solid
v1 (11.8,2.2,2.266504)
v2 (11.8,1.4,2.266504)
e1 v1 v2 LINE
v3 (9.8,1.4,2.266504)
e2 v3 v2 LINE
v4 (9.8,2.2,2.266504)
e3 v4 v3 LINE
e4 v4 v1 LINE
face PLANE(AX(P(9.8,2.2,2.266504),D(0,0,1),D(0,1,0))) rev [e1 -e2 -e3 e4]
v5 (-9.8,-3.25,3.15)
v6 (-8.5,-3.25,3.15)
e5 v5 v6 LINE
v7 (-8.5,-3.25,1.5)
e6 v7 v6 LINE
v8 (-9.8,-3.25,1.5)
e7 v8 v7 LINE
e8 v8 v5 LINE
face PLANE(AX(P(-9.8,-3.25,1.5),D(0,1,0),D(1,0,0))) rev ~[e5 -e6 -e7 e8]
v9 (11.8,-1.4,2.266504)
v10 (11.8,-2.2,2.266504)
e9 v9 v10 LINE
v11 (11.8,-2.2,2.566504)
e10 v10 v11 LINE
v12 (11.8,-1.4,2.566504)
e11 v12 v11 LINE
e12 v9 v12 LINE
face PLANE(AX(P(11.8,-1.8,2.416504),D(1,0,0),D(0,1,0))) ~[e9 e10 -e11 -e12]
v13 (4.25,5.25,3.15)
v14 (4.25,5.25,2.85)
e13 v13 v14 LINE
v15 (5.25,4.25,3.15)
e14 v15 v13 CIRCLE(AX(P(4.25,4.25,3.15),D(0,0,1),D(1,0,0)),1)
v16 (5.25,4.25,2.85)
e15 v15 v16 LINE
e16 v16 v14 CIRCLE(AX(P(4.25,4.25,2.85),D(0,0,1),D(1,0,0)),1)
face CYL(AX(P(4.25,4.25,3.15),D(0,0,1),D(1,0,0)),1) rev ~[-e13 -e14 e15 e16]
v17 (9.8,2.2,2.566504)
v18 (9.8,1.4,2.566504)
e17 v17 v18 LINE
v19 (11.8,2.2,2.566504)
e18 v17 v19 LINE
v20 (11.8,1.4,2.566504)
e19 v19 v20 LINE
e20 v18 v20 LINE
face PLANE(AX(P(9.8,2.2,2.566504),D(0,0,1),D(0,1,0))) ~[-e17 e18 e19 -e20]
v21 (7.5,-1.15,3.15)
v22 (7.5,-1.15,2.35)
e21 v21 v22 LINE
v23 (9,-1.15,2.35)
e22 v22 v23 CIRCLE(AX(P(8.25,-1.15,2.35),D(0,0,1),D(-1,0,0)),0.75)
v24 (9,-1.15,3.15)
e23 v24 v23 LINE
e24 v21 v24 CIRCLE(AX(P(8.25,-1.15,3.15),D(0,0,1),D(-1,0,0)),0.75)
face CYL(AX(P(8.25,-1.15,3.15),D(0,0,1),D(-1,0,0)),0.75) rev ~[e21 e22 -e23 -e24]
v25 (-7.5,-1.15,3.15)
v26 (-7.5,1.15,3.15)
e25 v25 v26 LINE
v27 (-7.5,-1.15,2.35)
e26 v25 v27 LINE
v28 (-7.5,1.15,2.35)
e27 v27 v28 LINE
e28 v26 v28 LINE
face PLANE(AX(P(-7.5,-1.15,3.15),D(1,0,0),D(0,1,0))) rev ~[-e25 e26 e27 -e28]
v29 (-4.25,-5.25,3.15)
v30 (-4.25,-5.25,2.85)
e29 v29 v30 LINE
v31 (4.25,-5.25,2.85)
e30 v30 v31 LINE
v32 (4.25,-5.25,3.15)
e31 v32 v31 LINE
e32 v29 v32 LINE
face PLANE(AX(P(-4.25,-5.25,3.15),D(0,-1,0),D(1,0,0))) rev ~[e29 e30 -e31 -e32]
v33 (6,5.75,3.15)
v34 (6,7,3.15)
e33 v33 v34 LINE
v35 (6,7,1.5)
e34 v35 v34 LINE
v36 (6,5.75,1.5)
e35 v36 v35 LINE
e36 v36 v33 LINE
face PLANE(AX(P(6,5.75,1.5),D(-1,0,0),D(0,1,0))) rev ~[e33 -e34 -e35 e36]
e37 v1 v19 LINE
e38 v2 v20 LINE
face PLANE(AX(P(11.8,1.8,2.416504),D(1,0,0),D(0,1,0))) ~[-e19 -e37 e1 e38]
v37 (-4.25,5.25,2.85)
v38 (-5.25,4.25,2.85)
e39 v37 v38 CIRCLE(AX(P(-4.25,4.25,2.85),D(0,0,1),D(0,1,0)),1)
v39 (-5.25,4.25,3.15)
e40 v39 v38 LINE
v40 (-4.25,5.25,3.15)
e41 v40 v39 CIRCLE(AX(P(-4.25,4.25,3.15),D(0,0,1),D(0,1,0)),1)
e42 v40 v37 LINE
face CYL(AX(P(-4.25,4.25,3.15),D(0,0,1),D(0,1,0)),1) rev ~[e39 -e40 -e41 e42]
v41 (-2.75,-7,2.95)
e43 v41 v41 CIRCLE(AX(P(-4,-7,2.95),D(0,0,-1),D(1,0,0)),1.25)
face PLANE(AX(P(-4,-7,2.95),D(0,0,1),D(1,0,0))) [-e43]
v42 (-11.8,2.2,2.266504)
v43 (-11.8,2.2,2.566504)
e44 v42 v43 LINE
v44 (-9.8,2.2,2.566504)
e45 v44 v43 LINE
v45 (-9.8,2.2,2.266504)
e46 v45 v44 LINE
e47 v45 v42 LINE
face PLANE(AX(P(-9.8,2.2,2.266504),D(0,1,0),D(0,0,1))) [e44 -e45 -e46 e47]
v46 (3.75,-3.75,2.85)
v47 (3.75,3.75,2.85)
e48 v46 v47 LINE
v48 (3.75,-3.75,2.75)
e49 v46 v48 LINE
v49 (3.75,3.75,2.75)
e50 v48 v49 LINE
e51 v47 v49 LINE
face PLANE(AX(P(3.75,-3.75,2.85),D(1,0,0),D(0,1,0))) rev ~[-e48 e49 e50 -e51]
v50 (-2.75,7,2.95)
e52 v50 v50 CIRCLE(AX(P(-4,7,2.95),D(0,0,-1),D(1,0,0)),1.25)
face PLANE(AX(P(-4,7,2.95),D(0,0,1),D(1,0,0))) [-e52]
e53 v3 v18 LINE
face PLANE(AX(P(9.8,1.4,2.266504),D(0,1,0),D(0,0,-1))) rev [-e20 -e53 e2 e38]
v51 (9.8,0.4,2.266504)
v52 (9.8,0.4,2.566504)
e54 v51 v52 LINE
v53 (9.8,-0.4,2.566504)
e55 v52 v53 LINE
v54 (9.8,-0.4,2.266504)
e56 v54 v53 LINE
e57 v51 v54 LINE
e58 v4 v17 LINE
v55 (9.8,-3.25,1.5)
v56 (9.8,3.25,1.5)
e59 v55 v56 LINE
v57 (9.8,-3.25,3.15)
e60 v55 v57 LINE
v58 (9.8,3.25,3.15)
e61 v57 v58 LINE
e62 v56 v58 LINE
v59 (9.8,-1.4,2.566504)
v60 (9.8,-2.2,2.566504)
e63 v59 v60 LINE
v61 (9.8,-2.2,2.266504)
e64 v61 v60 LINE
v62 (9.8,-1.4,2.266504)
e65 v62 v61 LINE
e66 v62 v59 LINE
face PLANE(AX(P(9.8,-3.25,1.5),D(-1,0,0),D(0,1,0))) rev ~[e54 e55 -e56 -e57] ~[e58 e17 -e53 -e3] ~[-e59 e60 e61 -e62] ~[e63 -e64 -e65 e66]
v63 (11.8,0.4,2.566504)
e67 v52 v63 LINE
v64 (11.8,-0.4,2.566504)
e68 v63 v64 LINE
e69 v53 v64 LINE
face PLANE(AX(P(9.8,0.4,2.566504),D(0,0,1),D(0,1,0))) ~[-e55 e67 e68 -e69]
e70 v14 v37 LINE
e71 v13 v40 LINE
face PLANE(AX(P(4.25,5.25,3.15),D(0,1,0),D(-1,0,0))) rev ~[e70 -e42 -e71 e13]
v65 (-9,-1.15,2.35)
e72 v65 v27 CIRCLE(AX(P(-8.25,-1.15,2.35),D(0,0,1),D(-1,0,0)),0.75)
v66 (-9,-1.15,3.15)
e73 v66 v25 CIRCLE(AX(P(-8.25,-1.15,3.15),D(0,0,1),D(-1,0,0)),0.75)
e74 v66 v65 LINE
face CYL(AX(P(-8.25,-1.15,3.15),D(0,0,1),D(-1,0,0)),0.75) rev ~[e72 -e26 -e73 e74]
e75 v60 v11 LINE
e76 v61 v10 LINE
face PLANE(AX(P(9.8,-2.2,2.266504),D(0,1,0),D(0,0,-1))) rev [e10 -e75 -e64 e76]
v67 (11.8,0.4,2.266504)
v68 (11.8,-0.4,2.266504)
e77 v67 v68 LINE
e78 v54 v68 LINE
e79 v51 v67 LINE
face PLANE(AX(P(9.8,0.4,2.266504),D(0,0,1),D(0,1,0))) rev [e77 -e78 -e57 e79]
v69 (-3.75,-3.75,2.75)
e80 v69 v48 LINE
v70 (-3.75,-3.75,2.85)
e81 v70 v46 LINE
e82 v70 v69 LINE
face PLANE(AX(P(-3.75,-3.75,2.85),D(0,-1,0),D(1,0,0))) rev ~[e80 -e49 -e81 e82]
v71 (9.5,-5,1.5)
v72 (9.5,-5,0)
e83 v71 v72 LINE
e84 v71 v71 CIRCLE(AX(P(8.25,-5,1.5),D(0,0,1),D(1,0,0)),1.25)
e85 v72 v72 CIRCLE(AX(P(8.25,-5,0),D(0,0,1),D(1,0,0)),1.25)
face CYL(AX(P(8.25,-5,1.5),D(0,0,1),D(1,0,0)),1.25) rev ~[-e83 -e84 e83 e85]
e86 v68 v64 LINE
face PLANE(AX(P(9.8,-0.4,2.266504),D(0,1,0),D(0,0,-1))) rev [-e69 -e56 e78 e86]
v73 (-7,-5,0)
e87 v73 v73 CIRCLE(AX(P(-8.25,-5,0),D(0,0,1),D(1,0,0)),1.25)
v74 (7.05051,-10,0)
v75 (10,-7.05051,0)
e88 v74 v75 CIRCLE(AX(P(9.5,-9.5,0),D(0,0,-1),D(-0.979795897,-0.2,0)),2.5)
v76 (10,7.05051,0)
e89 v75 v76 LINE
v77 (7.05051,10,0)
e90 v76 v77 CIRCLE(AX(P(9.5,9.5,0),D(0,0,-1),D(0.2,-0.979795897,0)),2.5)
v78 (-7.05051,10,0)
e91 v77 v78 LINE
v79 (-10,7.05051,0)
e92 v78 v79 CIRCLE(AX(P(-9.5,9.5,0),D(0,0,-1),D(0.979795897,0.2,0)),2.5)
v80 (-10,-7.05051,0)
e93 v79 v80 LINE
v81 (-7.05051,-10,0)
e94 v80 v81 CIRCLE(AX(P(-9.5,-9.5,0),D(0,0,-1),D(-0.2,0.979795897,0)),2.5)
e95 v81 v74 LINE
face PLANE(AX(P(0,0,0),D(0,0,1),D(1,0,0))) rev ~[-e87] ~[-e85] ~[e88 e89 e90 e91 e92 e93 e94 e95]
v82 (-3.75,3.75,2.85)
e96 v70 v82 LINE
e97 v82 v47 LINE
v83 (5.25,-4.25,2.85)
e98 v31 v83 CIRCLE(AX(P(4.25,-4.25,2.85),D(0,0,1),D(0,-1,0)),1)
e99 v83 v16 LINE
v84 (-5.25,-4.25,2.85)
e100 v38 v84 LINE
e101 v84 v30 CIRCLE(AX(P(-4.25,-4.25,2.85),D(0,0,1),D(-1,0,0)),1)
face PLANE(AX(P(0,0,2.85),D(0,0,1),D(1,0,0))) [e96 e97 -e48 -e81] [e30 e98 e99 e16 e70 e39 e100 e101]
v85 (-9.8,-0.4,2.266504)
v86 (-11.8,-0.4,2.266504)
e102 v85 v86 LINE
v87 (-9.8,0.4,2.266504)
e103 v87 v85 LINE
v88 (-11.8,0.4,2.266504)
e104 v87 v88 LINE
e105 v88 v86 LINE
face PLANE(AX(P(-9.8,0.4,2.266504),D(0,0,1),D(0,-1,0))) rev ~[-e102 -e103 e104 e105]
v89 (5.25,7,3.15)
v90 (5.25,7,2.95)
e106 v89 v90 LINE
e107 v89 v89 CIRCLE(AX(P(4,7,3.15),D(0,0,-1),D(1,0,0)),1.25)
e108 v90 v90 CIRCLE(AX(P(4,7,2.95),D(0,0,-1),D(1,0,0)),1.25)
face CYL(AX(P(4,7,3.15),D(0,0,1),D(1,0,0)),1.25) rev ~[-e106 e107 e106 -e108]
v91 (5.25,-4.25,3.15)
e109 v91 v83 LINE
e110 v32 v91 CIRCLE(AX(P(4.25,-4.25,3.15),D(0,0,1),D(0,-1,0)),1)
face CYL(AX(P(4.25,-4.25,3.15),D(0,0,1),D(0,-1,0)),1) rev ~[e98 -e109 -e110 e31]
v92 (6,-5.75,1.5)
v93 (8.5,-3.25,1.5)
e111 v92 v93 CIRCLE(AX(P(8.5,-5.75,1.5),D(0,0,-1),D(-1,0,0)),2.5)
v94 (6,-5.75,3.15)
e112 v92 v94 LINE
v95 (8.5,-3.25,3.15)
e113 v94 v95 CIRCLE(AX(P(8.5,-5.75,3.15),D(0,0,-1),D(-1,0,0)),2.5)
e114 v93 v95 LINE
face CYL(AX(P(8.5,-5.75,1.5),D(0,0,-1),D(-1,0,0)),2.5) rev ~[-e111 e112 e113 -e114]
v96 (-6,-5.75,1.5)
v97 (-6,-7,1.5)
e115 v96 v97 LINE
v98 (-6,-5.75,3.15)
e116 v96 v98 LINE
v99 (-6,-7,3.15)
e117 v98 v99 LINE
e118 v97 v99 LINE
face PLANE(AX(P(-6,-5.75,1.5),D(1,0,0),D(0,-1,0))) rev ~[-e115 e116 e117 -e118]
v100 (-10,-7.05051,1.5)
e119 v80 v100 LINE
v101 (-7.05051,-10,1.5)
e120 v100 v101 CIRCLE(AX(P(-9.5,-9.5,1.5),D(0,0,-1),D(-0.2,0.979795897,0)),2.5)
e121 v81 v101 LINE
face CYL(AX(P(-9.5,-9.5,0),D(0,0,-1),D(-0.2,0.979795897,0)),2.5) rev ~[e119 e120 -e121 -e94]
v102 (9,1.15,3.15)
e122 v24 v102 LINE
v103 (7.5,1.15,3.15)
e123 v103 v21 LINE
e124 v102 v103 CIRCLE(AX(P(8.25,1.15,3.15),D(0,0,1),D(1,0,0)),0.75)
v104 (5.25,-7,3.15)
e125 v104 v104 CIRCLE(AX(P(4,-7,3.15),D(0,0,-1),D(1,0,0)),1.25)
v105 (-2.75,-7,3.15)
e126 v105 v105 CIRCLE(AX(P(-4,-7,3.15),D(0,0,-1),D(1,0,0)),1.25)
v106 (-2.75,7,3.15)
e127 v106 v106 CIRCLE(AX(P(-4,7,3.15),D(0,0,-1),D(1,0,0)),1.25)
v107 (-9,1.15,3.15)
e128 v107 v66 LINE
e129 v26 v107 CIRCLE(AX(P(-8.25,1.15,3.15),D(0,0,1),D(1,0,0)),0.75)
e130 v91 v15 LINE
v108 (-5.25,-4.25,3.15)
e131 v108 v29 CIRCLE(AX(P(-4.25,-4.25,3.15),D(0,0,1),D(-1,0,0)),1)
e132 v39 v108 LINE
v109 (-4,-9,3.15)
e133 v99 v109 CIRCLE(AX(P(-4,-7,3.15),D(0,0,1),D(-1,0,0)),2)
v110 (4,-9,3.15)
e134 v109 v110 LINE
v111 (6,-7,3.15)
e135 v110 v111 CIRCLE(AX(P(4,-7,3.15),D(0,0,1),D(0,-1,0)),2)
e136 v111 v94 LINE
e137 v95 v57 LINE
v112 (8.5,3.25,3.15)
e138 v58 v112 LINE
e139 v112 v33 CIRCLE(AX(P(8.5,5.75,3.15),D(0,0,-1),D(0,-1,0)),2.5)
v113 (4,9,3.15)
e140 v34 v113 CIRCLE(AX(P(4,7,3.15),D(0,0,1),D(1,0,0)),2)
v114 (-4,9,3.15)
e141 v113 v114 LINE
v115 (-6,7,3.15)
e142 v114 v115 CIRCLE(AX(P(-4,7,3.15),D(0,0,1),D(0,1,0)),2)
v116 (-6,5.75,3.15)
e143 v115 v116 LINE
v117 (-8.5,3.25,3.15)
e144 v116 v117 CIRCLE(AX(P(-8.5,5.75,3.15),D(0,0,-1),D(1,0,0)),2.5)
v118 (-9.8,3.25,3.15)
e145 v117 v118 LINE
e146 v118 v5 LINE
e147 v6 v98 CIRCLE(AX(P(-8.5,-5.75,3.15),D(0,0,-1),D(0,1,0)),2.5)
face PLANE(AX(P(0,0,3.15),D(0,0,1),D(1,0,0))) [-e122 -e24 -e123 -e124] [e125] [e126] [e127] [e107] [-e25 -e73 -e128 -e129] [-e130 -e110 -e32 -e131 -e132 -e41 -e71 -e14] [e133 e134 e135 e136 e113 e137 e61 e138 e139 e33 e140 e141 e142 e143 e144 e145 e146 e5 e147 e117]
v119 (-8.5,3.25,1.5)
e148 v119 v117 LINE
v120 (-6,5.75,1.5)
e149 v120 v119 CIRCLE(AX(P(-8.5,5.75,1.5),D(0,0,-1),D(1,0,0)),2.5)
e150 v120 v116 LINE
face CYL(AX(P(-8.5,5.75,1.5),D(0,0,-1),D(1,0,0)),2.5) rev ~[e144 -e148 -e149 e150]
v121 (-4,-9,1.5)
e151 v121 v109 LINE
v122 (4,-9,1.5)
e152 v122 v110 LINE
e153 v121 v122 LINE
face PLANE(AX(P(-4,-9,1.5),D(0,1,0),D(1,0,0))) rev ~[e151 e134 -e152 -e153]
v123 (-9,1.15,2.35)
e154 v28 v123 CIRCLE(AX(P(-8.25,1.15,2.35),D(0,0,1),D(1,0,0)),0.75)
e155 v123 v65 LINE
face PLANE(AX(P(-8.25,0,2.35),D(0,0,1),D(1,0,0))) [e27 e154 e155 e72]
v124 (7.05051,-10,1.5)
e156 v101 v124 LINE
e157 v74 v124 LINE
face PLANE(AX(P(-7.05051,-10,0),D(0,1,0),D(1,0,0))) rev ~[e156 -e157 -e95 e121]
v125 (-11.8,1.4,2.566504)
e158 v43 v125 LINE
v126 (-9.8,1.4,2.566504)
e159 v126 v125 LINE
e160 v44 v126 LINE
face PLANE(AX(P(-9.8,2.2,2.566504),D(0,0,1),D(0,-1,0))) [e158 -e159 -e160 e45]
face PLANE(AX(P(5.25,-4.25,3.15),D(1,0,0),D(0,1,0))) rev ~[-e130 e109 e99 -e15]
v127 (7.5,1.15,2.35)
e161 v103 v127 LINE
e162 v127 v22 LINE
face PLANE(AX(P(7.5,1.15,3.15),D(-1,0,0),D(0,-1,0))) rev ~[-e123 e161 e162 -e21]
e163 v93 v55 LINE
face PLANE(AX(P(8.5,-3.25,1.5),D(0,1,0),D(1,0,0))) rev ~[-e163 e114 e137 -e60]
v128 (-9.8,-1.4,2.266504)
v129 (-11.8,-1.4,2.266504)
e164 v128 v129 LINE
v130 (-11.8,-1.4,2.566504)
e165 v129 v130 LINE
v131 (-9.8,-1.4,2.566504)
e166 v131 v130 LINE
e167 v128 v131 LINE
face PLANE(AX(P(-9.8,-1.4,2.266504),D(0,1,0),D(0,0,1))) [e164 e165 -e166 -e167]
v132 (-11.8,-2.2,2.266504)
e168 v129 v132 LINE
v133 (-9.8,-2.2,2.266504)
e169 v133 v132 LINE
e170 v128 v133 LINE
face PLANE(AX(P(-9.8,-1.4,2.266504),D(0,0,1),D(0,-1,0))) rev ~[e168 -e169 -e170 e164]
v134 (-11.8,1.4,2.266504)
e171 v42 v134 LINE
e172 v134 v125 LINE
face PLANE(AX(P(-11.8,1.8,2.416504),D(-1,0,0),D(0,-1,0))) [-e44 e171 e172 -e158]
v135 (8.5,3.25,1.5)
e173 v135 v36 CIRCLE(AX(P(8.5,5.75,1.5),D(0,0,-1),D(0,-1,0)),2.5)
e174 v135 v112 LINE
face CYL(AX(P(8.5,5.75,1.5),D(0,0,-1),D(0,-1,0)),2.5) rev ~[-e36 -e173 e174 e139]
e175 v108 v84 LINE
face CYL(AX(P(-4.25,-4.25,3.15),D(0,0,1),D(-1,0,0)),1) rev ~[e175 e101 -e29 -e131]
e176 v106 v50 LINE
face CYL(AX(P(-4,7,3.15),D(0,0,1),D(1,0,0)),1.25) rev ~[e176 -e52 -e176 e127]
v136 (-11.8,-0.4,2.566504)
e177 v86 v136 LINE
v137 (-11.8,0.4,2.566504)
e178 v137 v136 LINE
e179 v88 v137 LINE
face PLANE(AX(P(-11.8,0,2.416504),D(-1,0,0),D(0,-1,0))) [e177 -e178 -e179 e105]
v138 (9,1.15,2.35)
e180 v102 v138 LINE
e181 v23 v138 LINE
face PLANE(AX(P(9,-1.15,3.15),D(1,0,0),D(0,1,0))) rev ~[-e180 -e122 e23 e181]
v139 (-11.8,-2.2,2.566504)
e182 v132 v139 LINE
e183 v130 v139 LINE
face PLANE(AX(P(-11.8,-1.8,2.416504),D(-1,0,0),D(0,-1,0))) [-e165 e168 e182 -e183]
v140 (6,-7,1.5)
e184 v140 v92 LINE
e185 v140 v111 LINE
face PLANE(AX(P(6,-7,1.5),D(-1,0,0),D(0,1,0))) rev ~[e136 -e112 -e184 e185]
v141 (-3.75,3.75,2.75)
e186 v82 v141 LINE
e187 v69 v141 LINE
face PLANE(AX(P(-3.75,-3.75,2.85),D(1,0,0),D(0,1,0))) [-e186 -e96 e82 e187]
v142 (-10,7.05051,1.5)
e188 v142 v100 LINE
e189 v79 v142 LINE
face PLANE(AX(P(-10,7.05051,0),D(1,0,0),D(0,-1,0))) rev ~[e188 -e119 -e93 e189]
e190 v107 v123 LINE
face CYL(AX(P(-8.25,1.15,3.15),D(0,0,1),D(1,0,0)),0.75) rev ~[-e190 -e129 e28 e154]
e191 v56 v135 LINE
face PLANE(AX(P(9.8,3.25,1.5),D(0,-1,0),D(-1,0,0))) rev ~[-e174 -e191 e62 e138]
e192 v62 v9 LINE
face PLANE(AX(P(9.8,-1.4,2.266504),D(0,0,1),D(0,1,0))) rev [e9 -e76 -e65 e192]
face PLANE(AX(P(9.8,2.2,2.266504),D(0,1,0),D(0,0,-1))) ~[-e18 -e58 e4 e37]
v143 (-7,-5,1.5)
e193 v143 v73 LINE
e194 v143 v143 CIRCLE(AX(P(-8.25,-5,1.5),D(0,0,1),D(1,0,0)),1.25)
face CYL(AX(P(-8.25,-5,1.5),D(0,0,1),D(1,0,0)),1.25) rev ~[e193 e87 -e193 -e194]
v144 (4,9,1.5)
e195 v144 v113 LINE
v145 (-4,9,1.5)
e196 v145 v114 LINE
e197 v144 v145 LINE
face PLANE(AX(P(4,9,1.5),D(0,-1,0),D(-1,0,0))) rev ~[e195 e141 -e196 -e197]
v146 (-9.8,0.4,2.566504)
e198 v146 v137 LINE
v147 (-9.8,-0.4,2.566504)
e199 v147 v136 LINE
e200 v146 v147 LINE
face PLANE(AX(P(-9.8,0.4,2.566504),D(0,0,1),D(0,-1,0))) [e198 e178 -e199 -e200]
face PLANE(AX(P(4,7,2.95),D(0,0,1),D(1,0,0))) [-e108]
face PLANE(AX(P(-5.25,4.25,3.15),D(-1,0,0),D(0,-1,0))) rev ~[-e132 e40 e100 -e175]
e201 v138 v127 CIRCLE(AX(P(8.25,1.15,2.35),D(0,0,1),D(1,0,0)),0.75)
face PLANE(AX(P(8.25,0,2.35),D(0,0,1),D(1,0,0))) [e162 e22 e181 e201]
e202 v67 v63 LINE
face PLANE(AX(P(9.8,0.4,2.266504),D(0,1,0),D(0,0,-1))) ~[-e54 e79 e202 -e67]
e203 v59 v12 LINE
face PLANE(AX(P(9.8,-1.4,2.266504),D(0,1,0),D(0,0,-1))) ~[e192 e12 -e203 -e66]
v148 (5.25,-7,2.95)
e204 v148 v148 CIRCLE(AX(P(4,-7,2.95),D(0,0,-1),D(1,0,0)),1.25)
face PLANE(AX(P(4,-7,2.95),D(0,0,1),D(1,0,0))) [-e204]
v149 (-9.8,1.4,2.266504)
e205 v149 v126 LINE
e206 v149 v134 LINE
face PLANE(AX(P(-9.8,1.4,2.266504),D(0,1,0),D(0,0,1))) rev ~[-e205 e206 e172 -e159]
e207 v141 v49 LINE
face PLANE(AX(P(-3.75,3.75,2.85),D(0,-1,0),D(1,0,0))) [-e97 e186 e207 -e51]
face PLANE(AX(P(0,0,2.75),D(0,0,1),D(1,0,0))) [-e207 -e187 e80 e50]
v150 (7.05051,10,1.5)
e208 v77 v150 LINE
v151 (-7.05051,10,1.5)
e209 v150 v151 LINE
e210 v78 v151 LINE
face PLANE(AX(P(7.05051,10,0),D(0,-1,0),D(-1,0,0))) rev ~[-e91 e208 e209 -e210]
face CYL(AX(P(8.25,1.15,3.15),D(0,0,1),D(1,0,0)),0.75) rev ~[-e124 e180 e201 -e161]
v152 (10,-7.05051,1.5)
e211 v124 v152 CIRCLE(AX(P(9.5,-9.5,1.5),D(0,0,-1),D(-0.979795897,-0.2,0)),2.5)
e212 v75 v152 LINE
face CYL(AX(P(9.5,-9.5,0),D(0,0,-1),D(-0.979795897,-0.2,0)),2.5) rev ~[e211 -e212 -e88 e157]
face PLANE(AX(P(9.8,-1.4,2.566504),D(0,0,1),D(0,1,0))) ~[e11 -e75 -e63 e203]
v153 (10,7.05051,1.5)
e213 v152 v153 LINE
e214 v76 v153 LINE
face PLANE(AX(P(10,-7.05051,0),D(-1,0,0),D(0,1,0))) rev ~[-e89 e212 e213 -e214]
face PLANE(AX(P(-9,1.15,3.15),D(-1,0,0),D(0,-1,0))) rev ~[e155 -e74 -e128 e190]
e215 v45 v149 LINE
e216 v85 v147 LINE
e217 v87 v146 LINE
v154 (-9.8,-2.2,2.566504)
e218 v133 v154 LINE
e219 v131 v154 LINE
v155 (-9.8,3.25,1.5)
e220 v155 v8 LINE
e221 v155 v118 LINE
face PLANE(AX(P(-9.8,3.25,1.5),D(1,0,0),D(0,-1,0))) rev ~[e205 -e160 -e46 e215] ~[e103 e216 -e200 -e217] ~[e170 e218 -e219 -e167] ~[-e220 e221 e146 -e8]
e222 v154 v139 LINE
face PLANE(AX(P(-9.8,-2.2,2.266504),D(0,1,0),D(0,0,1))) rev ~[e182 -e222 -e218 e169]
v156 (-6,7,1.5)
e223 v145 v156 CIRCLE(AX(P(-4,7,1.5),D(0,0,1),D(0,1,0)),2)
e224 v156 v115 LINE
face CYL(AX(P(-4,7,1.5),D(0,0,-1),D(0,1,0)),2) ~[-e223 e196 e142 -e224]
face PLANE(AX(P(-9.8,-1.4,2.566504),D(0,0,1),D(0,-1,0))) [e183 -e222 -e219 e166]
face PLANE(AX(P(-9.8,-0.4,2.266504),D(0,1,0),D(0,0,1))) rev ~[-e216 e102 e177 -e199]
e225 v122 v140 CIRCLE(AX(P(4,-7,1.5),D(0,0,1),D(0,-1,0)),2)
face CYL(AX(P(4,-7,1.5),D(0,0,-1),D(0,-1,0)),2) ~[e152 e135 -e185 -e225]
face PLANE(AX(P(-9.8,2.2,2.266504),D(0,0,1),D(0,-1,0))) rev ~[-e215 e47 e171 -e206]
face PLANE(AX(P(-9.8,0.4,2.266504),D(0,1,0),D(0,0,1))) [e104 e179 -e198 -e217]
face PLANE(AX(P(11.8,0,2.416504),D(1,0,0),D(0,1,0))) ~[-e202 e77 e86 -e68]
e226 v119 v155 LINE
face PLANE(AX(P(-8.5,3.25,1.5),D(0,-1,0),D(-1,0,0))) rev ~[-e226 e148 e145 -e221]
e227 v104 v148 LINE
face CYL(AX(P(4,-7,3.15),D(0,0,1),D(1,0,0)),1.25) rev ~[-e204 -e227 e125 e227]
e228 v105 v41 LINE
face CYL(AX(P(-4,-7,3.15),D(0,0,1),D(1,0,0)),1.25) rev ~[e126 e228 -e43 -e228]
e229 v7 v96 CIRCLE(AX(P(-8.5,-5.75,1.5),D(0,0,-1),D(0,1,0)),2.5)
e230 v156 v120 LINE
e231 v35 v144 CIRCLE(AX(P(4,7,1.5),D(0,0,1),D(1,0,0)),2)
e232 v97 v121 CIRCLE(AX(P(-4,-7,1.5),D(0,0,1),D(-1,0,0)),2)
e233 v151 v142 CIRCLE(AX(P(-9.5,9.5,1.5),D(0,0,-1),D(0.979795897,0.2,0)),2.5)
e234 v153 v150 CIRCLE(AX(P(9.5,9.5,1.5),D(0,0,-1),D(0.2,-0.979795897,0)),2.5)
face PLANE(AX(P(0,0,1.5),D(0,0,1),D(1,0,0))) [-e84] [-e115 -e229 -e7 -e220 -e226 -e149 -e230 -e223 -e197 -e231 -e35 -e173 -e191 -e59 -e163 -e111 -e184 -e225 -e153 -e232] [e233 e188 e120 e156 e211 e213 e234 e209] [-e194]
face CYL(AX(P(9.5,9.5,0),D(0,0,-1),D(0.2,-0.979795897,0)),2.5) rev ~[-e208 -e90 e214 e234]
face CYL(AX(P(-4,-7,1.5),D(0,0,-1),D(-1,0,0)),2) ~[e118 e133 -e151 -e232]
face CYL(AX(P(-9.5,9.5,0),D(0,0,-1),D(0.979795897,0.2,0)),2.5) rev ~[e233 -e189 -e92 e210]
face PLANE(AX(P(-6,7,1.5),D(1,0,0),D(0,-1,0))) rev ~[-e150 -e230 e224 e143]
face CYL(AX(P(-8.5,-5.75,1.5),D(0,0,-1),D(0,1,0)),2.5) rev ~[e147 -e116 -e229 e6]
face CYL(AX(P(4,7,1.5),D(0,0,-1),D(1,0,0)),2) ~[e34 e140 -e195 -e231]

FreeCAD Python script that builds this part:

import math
import FreeCAD as App
import Part
import Sketcher

doc = App.newDocument("Part")
body = doc.addObject("PartDesign::Body", "Body")

sketch1 = doc.addObject("Sketcher::SketchObject", "Sketch")
body.addObject(sketch1)
sketch1.AttachmentSupport = (doc.XY_Plane, [""])
sketch1.MapMode = "FlatFace"
sketch1.addGeometry(Part.ArcOfCircle(Part.Circle(App.Vector(-9.5, 9.5, 0), App.Vector(0, 0, 1), 2.5), math.radians(-102), math.radians(12)), False)
sketch1.addGeometry(Part.LineSegment(App.Vector(-10, 7.1, 0), App.Vector(-10, -7.1, 0)), False)
sketch1.addGeometry(Part.ArcOfCircle(Part.Circle(App.Vector(-9.5, -9.5, 0), App.Vector(0, 0, 1), 2.5), math.radians(-12), math.radians(102)), False)
sketch1.addGeometry(Part.LineSegment(App.Vector(-7.1, -10, 0), App.Vector(7.1, -10, 0)), False)
sketch1.addGeometry(Part.ArcOfCircle(Part.Circle(App.Vector(9.5, -9.5, 0), App.Vector(0, 0, 1), 2.5), math.radians(78), math.radians(192)), False)
sketch1.addGeometry(Part.LineSegment(App.Vector(10, -7.1, 0), App.Vector(10, 7.1, 0)), False)
sketch1.addGeometry(Part.ArcOfCircle(Part.Circle(App.Vector(9.5, 9.5, 0), App.Vector(0, 0, 1), 2.5), math.radians(168), math.radians(282)), False)
sketch1.addGeometry(Part.LineSegment(App.Vector(7.1, 10, 0), App.Vector(-7.1, 10, 0)), False)
sketch1.addConstraint(Sketcher.Constraint("Coincident", 0, 1, 1, 1))
sketch1.addConstraint(Sketcher.Constraint("Coincident", 1, 2, 2, 2))
sketch1.addConstraint(Sketcher.Constraint("Coincident", 2, 1, 3, 1))
sketch1.addConstraint(Sketcher.Constraint("Coincident", 3, 2, 4, 2))
sketch1.addConstraint(Sketcher.Constraint("Coincident", 4, 1, 5, 1))
sketch1.addConstraint(Sketcher.Constraint("Coincident", 5, 2, 6, 2))
sketch1.addConstraint(Sketcher.Constraint("Coincident", 6, 1, 7, 1))
sketch1.addConstraint(Sketcher.Constraint("Coincident", 7, 2, 0, 2))
sketch1.addConstraint(Sketcher.Constraint("Vertical", 1))
sketch1.addConstraint(Sketcher.Constraint("Horizontal", 3))
sketch1.addConstraint(Sketcher.Constraint("Vertical", 5))
sketch1.addConstraint(Sketcher.Constraint("Horizontal", 7))
sketch1.addConstraint(Sketcher.Constraint("Equal", 0, 2))
sketch1.addConstraint(Sketcher.Constraint("Equal", 2, 4))
sketch1.addConstraint(Sketcher.Constraint("Equal", 4, 6))
sketch1.addConstraint(Sketcher.Constraint("Symmetric", 0, 3, 4, 3, -1, 1))
sketch1.addConstraint(Sketcher.Constraint("Symmetric", 2, 3, 6, 3, -1, 1))
sketch1.addConstraint(Sketcher.Constraint("Symmetric", 2, 3, 4, 3, -2))
sketch1.addConstraint(Sketcher.Constraint("Horizontal", 1, 2, 4, 1))
sketch1.addConstraint(Sketcher.Constraint("Vertical", 3, 2, 6, 1))
sketch1.addConstraint(Sketcher.Constraint("Equal", 7, 1))
sketch1.addConstraint(Sketcher.Constraint("Radius", 0, 2.5))
sketch1.addConstraint(Sketcher.Constraint("DistanceX", 0, 1, -1, 1, 10.0))
sketch1.addConstraint(Sketcher.Constraint("DistanceY", 2, 1, -1, 1, 10.0))
sketch1.addConstraint(Sketcher.Constraint("DistanceY", 2, 3, 0, 3, 19.0))
pad1 = doc.addObject("PartDesign::Pad", "Pad")
body.addObject(pad1)
pad1.Profile = sketch1
pad1.Length = 1.5

sketch2 = doc.addObject("Sketcher::SketchObject", "Sketch001")
body.addObject(sketch2)
sketch2.AttachmentSupport = (doc.XY_Plane, [""])
sketch2.MapMode = "FlatFace"
sketch2.AttachmentOffset = App.Placement(App.Vector(0, 0, 1.5), App.Rotation())
sketch2.addGeometry(Part.LineSegment(App.Vector(-6, 7, 0), App.Vector(-6, 5.8, 0)), False)
sketch2.addGeometry(Part.ArcOfCircle(Part.Circle(App.Vector(-8.5, 5.8, 0), App.Vector(0, 0, 1), 2.5), math.radians(-90), math.radians(0)), False)
sketch2.addGeometry(Part.LineSegment(App.Vector(-8.5, 3.2, 0), App.Vector(-9.8, 3.2, 0)), False)
sketch2.addGeometry(Part.LineSegment(App.Vector(-9.8, 3.2, 0), App.Vector(-9.8, -3.2, 0)), False)
sketch2.addGeometry(Part.LineSegment(App.Vector(-9.8, -3.2, 0), App.Vector(-8.5, -3.2, 0)), False)
sketch2.addGeometry(Part.ArcOfCircle(Part.Circle(App.Vector(-8.5, -5.8, 0), App.Vector(0, 0, 1), 2.5), math.radians(0), math.radians(90)), False)
sketch2.addGeometry(Part.LineSegment(App.Vector(-6, -5.8, 0), App.Vector(-6, -7, 0)), False)
sketch2.addGeometry(Part.ArcOfCircle(Part.Circle(App.Vector(-4, -7, 0), App.Vector(0, 0, 1), 2), math.radians(180), math.radians(270)), False)
sketch2.addGeometry(Part.LineSegment(App.Vector(-4, -9, 0), App.Vector(4, -9, 0)), False)
sketch2.addGeometry(Part.ArcOfCircle(Part.Circle(App.Vector(4, -7, 0), App.Vector(0, 0, 1), 2), math.radians(-90), math.radians(0)), False)
sketch2.addGeometry(Part.LineSegment(App.Vector(6, -7, 0), App.Vector(6, -5.8, 0)), False)
sketch2.addGeometry(Part.ArcOfCircle(Part.Circle(App.Vector(8.5, -5.8, 0), App.Vector(0, 0, 1), 2.5), math.radians(90), math.radians(180)), False)
sketch2.addGeometry(Part.LineSegment(App.Vector(8.5, -3.2, 0), App.Vector(9.8, -3.2, 0)), False)
sketch2.addGeometry(Part.LineSegment(App.Vector(9.8, -3.2, 0), App.Vector(9.8, 3.2, 0)), False)
sketch2.addGeometry(Part.LineSegment(App.Vector(9.8, 3.2, 0), App.Vector(8.5, 3.2, 0)), False)
sketch2.addGeometry(Part.ArcOfCircle(Part.Circle(App.Vector(8.5, 5.8, 0), App.Vector(0, 0, 1), 2.5), math.radians(180), math.radians(270)), False)
sketch2.addGeometry(Part.LineSegment(App.Vector(6, 5.8, 0), App.Vector(6, 7, 0)), False)
sketch2.addGeometry(Part.ArcOfCircle(Part.Circle(App.Vector(4, 7, 0), App.Vector(0, 0, 1), 2), math.radians(0), math.radians(90)), False)
sketch2.addGeometry(Part.LineSegment(App.Vector(4, 9, 0), App.Vector(-4, 9, 0)), False)
sketch2.addGeometry(Part.ArcOfCircle(Part.Circle(App.Vector(-4, 7, 0), App.Vector(0, 0, 1), 2), math.radians(90), math.radians(180)), False)
sketch2.addConstraint(Sketcher.Constraint("Tangent", 0, 2, 1, 2))
sketch2.addConstraint(Sketcher.Constraint("Tangent", 1, 1, 2, 1))
sketch2.addConstraint(Sketcher.Constraint("Coincident", 2, 2, 3, 1))
sketch2.addConstraint(Sketcher.Constraint("Coincident", 3, 2, 4, 1))
sketch2.addConstraint(Sketcher.Constraint("Tangent", 4, 2, 5, 2))
sketch2.addConstraint(Sketcher.Constraint("Tangent", 5, 1, 6, 1))
sketch2.addConstraint(Sketcher.Constraint("Tangent", 6, 2, 7, 1))
sketch2.addConstraint(Sketcher.Constraint("Tangent", 7, 2, 8, 1))
sketch2.addConstraint(Sketcher.Constraint("Tangent", 8, 2, 9, 1))
sketch2.addConstraint(Sketcher.Constraint("Tangent", 9, 2, 10, 1))
sketch2.addConstraint(Sketcher.Constraint("Tangent", 10, 2, 11, 2))
sketch2.addConstraint(Sketcher.Constraint("Tangent", 11, 1, 12, 1))
sketch2.addConstraint(Sketcher.Constraint("Coincident", 12, 2, 13, 1))
sketch2.addConstraint(Sketcher.Constraint("Coincident", 13, 2, 14, 1))
sketch2.addConstraint(Sketcher.Constraint("Tangent", 14, 2, 15, 2))
sketch2.addConstraint(Sketcher.Constraint("Tangent", 15, 1, 16, 1))
sketch2.addConstraint(Sketcher.Constraint("Tangent", 16, 2, 17, 1))
sketch2.addConstraint(Sketcher.Constraint("Tangent", 17, 2, 18, 1))
sketch2.addConstraint(Sketcher.Constraint("Tangent", 18, 2, 19, 1))
sketch2.addConstraint(Sketcher.Constraint("Tangent", 19, 2, 0, 1))
sketch2.addConstraint(Sketcher.Constraint("Vertical", 0))
sketch2.addConstraint(Sketcher.Constraint("Horizontal", 2))
sketch2.addConstraint(Sketcher.Constraint("Vertical", 3))
sketch2.addConstraint(Sketcher.Constraint("Horizontal", 4))
sketch2.addConstraint(Sketcher.Constraint("Vertical", 6))
sketch2.addConstraint(Sketcher.Constraint("Horizontal", 8))
sketch2.addConstraint(Sketcher.Constraint("Vertical", 10))
sketch2.addConstraint(Sketcher.Constraint("Horizontal", 12))
sketch2.addConstraint(Sketcher.Constraint("Vertical", 13))
sketch2.addConstraint(Sketcher.Constraint("Horizontal", 14))
sketch2.addConstraint(Sketcher.Constraint("Vertical", 16))
sketch2.addConstraint(Sketcher.Constraint("Horizontal", 18))
sketch2.addConstraint(Sketcher.Constraint("Equal", 1, 5))
sketch2.addConstraint(Sketcher.Constraint("Equal", 7, 9))
sketch2.addConstraint(Sketcher.Constraint("Equal", 5, 11))
sketch2.addConstraint(Sketcher.Constraint("Equal", 11, 15))
sketch2.addConstraint(Sketcher.Constraint("Equal", 9, 17))
sketch2.addConstraint(Sketcher.Constraint("Equal", 17, 19))
sketch2.addConstraint(Sketcher.Constraint("Symmetric", 1, 3, 11, 3, -1, 1))
sketch2.addConstraint(Sketcher.Constraint("Symmetric", 5, 3, 15, 3, -1, 1))
sketch2.addConstraint(Sketcher.Constraint("Symmetric", 5, 3, 11, 3, -2))
sketch2.addConstraint(Sketcher.Constraint("Equal", 4, 12))
sketch2.addConstraint(Sketcher.Constraint("Equal", 0, 6))
sketch2.addConstraint(Sketcher.Constraint("Radius", 7, 2.0))
sketch2.addConstraint(Sketcher.Constraint("Radius", 1, 2.5))
sketch2.addConstraint(Sketcher.Constraint("DistanceX", 8, 1, 8, 2, 8.0))
sketch2.addConstraint(Sketcher.Constraint("DistanceX", 2, 2, 2, 1, 1.3))
sketch2.addConstraint(Sketcher.Constraint("DistanceY", 3, 2, 3, 1, 6.5))
sketch2.addConstraint(Sketcher.Constraint("DistanceY", 7, 3, -1, 1, 7.0))
pad2 = doc.addObject("PartDesign::Pad", "Pad001")
body.addObject(pad2)
pad2.Profile = sketch2
pad2.Length = 1.65

sketch3 = doc.addObject("Sketcher::SketchObject", "Sketch002")
body.addObject(sketch3)
sketch3.AttachmentSupport = (doc.XY_Plane, [""])
sketch3.MapMode = "FlatFace"
sketch3.AttachmentOffset = App.Placement(App.Vector(0, 0, 3.15), App.Rotation())
sketch3.addGeometry(Part.LineSegment(App.Vector(4.2, 5.2, 0), App.Vector(-4.2, 5.2, 0)), False)
sketch3.addGeometry(Part.ArcOfCircle(Part.Circle(App.Vector(-4.2, 4.2, 0), App.Vector(0, 0, 1), 1), math.radians(90), math.radians(180)), False)
sketch3.addGeometry(Part.LineSegment(App.Vector(-5.2, 4.2, 0), App.Vector(-5.2, -4.2, 0)), False)
sketch3.addGeometry(Part.ArcOfCircle(Part.Circle(App.Vector(-4.2, -4.2, 0), App.Vector(0, 0, 1), 1), math.radians(180), math.radians(270)), False)
sketch3.addGeometry(Part.LineSegment(App.Vector(-4.2, -5.2, 0), App.Vector(4.2, -5.2, 0)), False)
sketch3.addGeometry(Part.ArcOfCircle(Part.Circle(App.Vector(4.2, -4.2, 0), App.Vector(0, 0, 1), 1), math.radians(-90), math.radians(0)), False)
sketch3.addGeometry(Part.LineSegment(App.Vector(5.2, -4.2, 0), App.Vector(5.2, 4.2, 0)), False)
sketch3.addGeometry(Part.ArcOfCircle(Part.Circle(App.Vector(4.2, 4.2, 0), App.Vector(0, 0, 1), 1), math.radians(0), math.radians(90)), False)
sketch3.addConstraint(Sketcher.Constraint("Tangent", 0, 2, 1, 1))
sketch3.addConstraint(Sketcher.Constraint("Tangent", 1, 2, 2, 1))
sketch3.addConstraint(Sketcher.Constraint("Tangent", 2, 2, 3, 1))
sketch3.addConstraint(Sketcher.Constraint("Tangent", 3, 2, 4, 1))
sketch3.addConstraint(Sketcher.Constraint("Tangent", 4, 2, 5, 1))
sketch3.addConstraint(Sketcher.Constraint("Tangent", 5, 2, 6, 1))
sketch3.addConstraint(Sketcher.Constraint("Tangent", 6, 2, 7, 1))
sketch3.addConstraint(Sketcher.Constraint("Tangent", 7, 2, 0, 1))
sketch3.addConstraint(Sketcher.Constraint("Horizontal", 0))
sketch3.addConstraint(Sketcher.Constraint("Vertical", 2))
sketch3.addConstraint(Sketcher.Constraint("Horizontal", 4))
sketch3.addConstraint(Sketcher.Constraint("Vertical", 6))
sketch3.addConstraint(Sketcher.Constraint("Equal", 1, 3))
sketch3.addConstraint(Sketcher.Constraint("Equal", 3, 5))
sketch3.addConstraint(Sketcher.Constraint("Equal", 5, 7))
sketch3.addConstraint(Sketcher.Constraint("Symmetric", 1, 3, 5, 3, -1, 1))
sketch3.addConstraint(Sketcher.Constraint("Equal", 4, 2))
sketch3.addConstraint(Sketcher.Constraint("Radius", 1, 1.0))
sketch3.addConstraint(Sketcher.Constraint("DistanceX", 0, 2, 0, 1, 8.5))
pocket1 = doc.addObject("PartDesign::Pocket", "Pocket")
body.addObject(pocket1)
pocket1.Profile = sketch3
pocket1.Length = 0.3

sketch4 = doc.addObject("Sketcher::SketchObject", "Sketch003")
body.addObject(sketch4)
sketch4.AttachmentSupport = (doc.XY_Plane, [""])
sketch4.MapMode = "FlatFace"
sketch4.AttachmentOffset = App.Placement(App.Vector(0, 0, 3.15), App.Rotation())
sketch4.addGeometry(Part.Circle(App.Vector(-4, 7, 0), App.Vector(0, 0, 1), 1.2), False)
sketch4.addGeometry(Part.Circle(App.Vector(4, 7, 0), App.Vector(0, 0, 1), 1.2), False)
sketch4.addGeometry(Part.Circle(App.Vector(-4, -7, 0), App.Vector(0, 0, 1), 1.2), False)
sketch4.addGeometry(Part.Circle(App.Vector(4, -7, 0), App.Vector(0, 0, 1), 1.2), False)
sketch4.addConstraint(Sketcher.Constraint("Equal", 0, 1))
sketch4.addConstraint(Sketcher.Constraint("Equal", 1, 2))
sketch4.addConstraint(Sketcher.Constraint("Equal", 2, 3))
sketch4.addConstraint(Sketcher.Constraint("Symmetric", 1, 3, 2, 3, -1, 1))
sketch4.addConstraint(Sketcher.Constraint("Symmetric", 0, 3, 3, 3, -1, 1))
sketch4.addConstraint(Sketcher.Constraint("Symmetric", 0, 3, 1, 3, -2))
sketch4.addConstraint(Sketcher.Constraint("Diameter", 0, 2.5))
sketch4.addConstraint(Sketcher.Constraint("DistanceX", 0, 3, -1, 1, 4.0))
sketch4.addConstraint(Sketcher.Constraint("DistanceY", -1, 1, 0, 3, 7.0))
pocket2 = doc.addObject("PartDesign::Pocket", "Pocket001")
body.addObject(pocket2)
pocket2.Profile = sketch4
pocket2.Length = 0.2

sketch5 = doc.addObject("Sketcher::SketchObject", "Sketch004")
body.addObject(sketch5)
sketch5.AttachmentSupport = (doc.YZ_Plane, [""])
sketch5.MapMode = "FlatFace"
sketch5.AttachmentOffset = App.Placement(App.Vector(0, 0, -9.8), App.Rotation())
sketch5.addGeometry(Part.LineSegment(App.Vector(0.4, 2.57, 0), App.Vector(0.4, 2.27, 0)), False)
sketch5.addGeometry(Part.LineSegment(App.Vector(0.4, 2.27, 0), App.Vector(-0.4, 2.27, 0)), False)
sketch5.addGeometry(Part.LineSegment(App.Vector(-0.4, 2.27, 0), App.Vector(-0.4, 2.57, 0)), False)
sketch5.addGeometry(Part.LineSegment(App.Vector(-0.4, 2.57, 0), App.Vector(0.4, 2.57, 0)), False)
sketch5.addGeometry(Part.LineSegment(App.Vector(-1.4, 2.57, 0), App.Vector(-1.4, 2.27, 0)), False)
sketch5.addGeometry(Part.LineSegment(App.Vector(-1.4, 2.27, 0), App.Vector(-2.2, 2.27, 0)), False)
sketch5.addGeometry(Part.LineSegment(App.Vector(-2.2, 2.27, 0), App.Vector(-2.2, 2.57, 0)), False)
sketch5.addGeometry(Part.LineSegment(App.Vector(-2.2, 2.57, 0), App.Vector(-1.4, 2.57, 0)), False)
sketch5.addGeometry(Part.LineSegment(App.Vector(2.2, 2.57, 0), App.Vector(2.2, 2.27, 0)), False)
sketch5.addGeometry(Part.LineSegment(App.Vector(2.2, 2.27, 0), App.Vector(1.4, 2.27, 0)), False)
sketch5.addGeometry(Part.LineSegment(App.Vector(1.4, 2.27, 0), App.Vector(1.4, 2.57, 0)), False)
sketch5.addGeometry(Part.LineSegment(App.Vector(1.4, 2.57, 0), App.Vector(2.2, 2.57, 0)), False)
sketch5.addConstraint(Sketcher.Constraint("Coincident", 0, 2, 1, 1))
sketch5.addConstraint(Sketcher.Constraint("Coincident", 1, 2, 2, 1))
sketch5.addConstraint(Sketcher.Constraint("Coincident", 2, 2, 3, 1))
sketch5.addConstraint(Sketcher.Constraint("Coincident", 3, 2, 0, 1))
sketch5.addConstraint(Sketcher.Constraint("Coincident", 4, 2, 5, 1))
sketch5.addConstraint(Sketcher.Constraint("Coincident", 5, 2, 6, 1))
sketch5.addConstraint(Sketcher.Constraint("Coincident", 6, 2, 7, 1))
sketch5.addConstraint(Sketcher.Constraint("Coincident", 7, 2, 4, 1))
sketch5.addConstraint(Sketcher.Constraint("Coincident", 8, 2, 9, 1))
sketch5.addConstraint(Sketcher.Constraint("Coincident", 9, 2, 10, 1))
sketch5.addConstraint(Sketcher.Constraint("Coincident", 10, 2, 11, 1))
sketch5.addConstraint(Sketcher.Constraint("Coincident", 11, 2, 8, 1))
sketch5.addConstraint(Sketcher.Constraint("Vertical", 0))
sketch5.addConstraint(Sketcher.Constraint("Horizontal", 1))
sketch5.addConstraint(Sketcher.Constraint("Vertical", 2))
sketch5.addConstraint(Sketcher.Constraint("Horizontal", 3))
sketch5.addConstraint(Sketcher.Constraint("Vertical", 4))
sketch5.addConstraint(Sketcher.Constraint("Horizontal", 5))
sketch5.addConstraint(Sketcher.Constraint("Vertical", 6))
sketch5.addConstraint(Sketcher.Constraint("Horizontal", 7))
sketch5.addConstraint(Sketcher.Constraint("Vertical", 8))
sketch5.addConstraint(Sketcher.Constraint("Horizontal", 9))
sketch5.addConstraint(Sketcher.Constraint("Vertical", 10))
sketch5.addConstraint(Sketcher.Constraint("Horizontal", 11))
sketch5.addConstraint(Sketcher.Constraint("Symmetric", 5, 2, 8, 2, -2))
sketch5.addConstraint(Sketcher.Constraint("Symmetric", 7, 2, 10, 2, -2))
sketch5.addConstraint(Sketcher.Constraint("Horizontal", 1, 2, 4, 2))
sketch5.addConstraint(Sketcher.Constraint("Horizontal", 3, 2, 6, 2))
sketch5.addConstraint(Sketcher.Constraint("Equal", 3, 5))
sketch5.addConstraint(Sketcher.Constraint("DistanceX", 1, 2, 1, 1, 0.8))
sketch5.addConstraint(Sketcher.Constraint("DistanceY", 0, 2, 0, 1, 0.3))
sketch5.addConstraint(Sketcher.Constraint("DistanceX", 4, 2, 1, 2, 1.0))
sketch5.addConstraint(Sketcher.Constraint("DistanceX", 0, 2, 9, 2, 1.0))
sketch5.addConstraint(Sketcher.Constraint("DistanceY", -1, 1, 0, 2, 2.266504))
pad3 = doc.addObject("PartDesign::Pad", "Pad002")
body.addObject(pad3)
pad3.Profile = sketch5
pad3.Length = 2
pad3.Reversed = True
body2 = doc.addObject("PartDesign::Body", "Body001")
doc.recompute()

body2.BaseFeature = body
doc.recompute()

mirroring = doc.addObject("Part::Mirroring", "Mirroring")
mirroring.Source = body
mirroring.Base = App.Vector(0, 0, 0)
mirroring.Normal = App.Vector(1, 0, 0)
body3 = doc.addObject("PartDesign::Body", "Body002")
body3.BaseFeature = mirroring
boolean = doc.addObject("PartDesign::Boolean", "Boolean")
body2.addObject(boolean)
boolean.Type = "Fuse"
boolean.addObjects([body3])
doc.recompute()

sketch6 = doc.addObject("Sketcher::SketchObject", "Sketch005")
body2.addObject(sketch6)
sketch6.AttachmentSupport = (doc.getObject("XY_Plane001"), [""])
sketch6.MapMode = "FlatFace"
sketch6.AttachmentOffset = App.Placement(App.Vector(0, 0, 1.5), App.Rotation())
sketch6.addGeometry(Part.Circle(App.Vector(-8.2, -5, 0), App.Vector(0, 0, 1), 1.2), False)
sketch6.addGeometry(Part.Circle(App.Vector(8.2, -5, 0), App.Vector(0, 0, 1), 1.2), False)
sketch6.addConstraint(Sketcher.Constraint("Equal", 0, 1))
sketch6.addConstraint(Sketcher.Constraint("Symmetric", 0, 3, 1, 3, -2))
sketch6.addConstraint(Sketcher.Constraint("Diameter", 0, 2.5))
sketch6.addConstraint(Sketcher.Constraint("DistanceY", 0, 3, -1, 1, 5.0))
sketch6.addConstraint(Sketcher.Constraint("DistanceX", 0, 3, 1, 3, 16.5))
pocket3 = doc.addObject("PartDesign::Pocket", "Pocket002")
body2.addObject(pocket3)
pocket3.Profile = sketch6
pocket3.Type = "ThroughAll"

sketch7 = doc.addObject("Sketcher::SketchObject", "Sketch006")
body2.addObject(sketch7)
sketch7.AttachmentSupport = (doc.getObject("XY_Plane001"), [""])
sketch7.MapMode = "FlatFace"
sketch7.AttachmentOffset = App.Placement(App.Vector(0, 0, 3.15), App.Rotation())
sketch7.addGeometry(Part.ArcOfCircle(Part.Circle(App.Vector(-8.2, 1.1, 0), App.Vector(0, 0, 1), 0.8), math.radians(0), math.radians(180)), False)
sketch7.addGeometry(Part.LineSegment(App.Vector(-9, 1.1, 0), App.Vector(-9, -1.1, 0)), False)
sketch7.addGeometry(Part.ArcOfCircle(Part.Circle(App.Vector(-8.2, -1.1, 0), App.Vector(0, 0, 1), 0.8), math.radians(180), math.radians(360)), False)
sketch7.addGeometry(Part.LineSegment(App.Vector(-7.5, -1.1, 0), App.Vector(-7.5, 1.1, 0)), False)
sketch7.addGeometry(Part.ArcOfCircle(Part.Circle(App.Vector(8.2, -1.1, 0), App.Vector(0, 0, 1), 0.8), math.radians(180), math.radians(360)), False)
sketch7.addGeometry(Part.LineSegment(App.Vector(9, -1.1, 0), App.Vector(9, 1.1, 0)), False)
sketch7.addGeometry(Part.ArcOfCircle(Part.Circle(App.Vector(8.2, 1.1, 0), App.Vector(0, 0, 1), 0.8), math.radians(0), math.radians(180)), False)
sketch7.addGeometry(Part.LineSegment(App.Vector(7.5, 1.1, 0), App.Vector(7.5, -1.1, 0)), False)
sketch7.addConstraint(Sketcher.Constraint("Tangent", 0, 2, 1, 1))
sketch7.addConstraint(Sketcher.Constraint("Tangent", 1, 2, 2, 1))
sketch7.addConstraint(Sketcher.Constraint("Tangent", 2, 2, 3, 1))
sketch7.addConstraint(Sketcher.Constraint("Tangent", 3, 2, 0, 1))
sketch7.addConstraint(Sketcher.Constraint("Tangent", 4, 2, 5, 1))
sketch7.addConstraint(Sketcher.Constraint("Tangent", 5, 2, 6, 1))
sketch7.addConstraint(Sketcher.Constraint("Tangent", 6, 2, 7, 1))
sketch7.addConstraint(Sketcher.Constraint("Tangent", 7, 2, 4, 1))
sketch7.addConstraint(Sketcher.Constraint("Vertical", 1))
sketch7.addConstraint(Sketcher.Constraint("Vertical", 3))
sketch7.addConstraint(Sketcher.Constraint("Vertical", 5))
sketch7.addConstraint(Sketcher.Constraint("Vertical", 7))
sketch7.addConstraint(Sketcher.Constraint("Equal", 2, 4))
sketch7.addConstraint(Sketcher.Constraint("Symmetric", 0, 3, 4, 3, -1, 1))
sketch7.addConstraint(Sketcher.Constraint("Horizontal", 2, 3, 4, 3))
sketch7.addConstraint(Sketcher.Constraint("Horizontal", 0, 3, 6, 3))
sketch7.addConstraint(Sketcher.Constraint("Radius", 0, 0.75))
sketch7.addConstraint(Sketcher.Constraint("DistanceY", 1, 2, 1, 1, 2.3))
sketch7.addConstraint(Sketcher.Constraint("DistanceX", 0, 2, -1, 1, 9.0))
pocket4 = doc.addObject("PartDesign::Pocket", "Pocket003")
body2.addObject(pocket4)
pocket4.Profile = sketch7
pocket4.Length = 0.8

sketch8 = doc.addObject("Sketcher::SketchObject", "Sketch007")
body2.addObject(sketch8)
sketch8.AttachmentSupport = (doc.getObject("XY_Plane001"), [""])
sketch8.MapMode = "FlatFace"
sketch8.AttachmentOffset = App.Placement(App.Vector(0, 0, 2.85), App.Rotation())
sketch8.addGeometry(Part.LineSegment(App.Vector(-4, 4, 0), App.Vector(-4, -4, 0)), False)
sketch8.addGeometry(Part.LineSegment(App.Vector(-4, -4, 0), App.Vector(4, -4, 0)), False)
sketch8.addGeometry(Part.LineSegment(App.Vector(4, -4, 0), App.Vector(4, 4, 0)), False)
sketch8.addGeometry(Part.LineSegment(App.Vector(4, 4, 0), App.Vector(-4, 4, 0)), False)
sketch8.addConstraint(Sketcher.Constraint("Coincident", 0, 2, 1, 1))
sketch8.addConstraint(Sketcher.Constraint("Coincident", 1, 2, 2, 1))
sketch8.addConstraint(Sketcher.Constraint("Coincident", 2, 2, 3, 1))
sketch8.addConstraint(Sketcher.Constraint("Coincident", 3, 2, 0, 1))
sketch8.addConstraint(Sketcher.Constraint("Vertical", 0))
sketch8.addConstraint(Sketcher.Constraint("Horizontal", 1))
sketch8.addConstraint(Sketcher.Constraint("Vertical", 2))
sketch8.addConstraint(Sketcher.Constraint("Horizontal", 3))
sketch8.addConstraint(Sketcher.Constraint("Symmetric", 0, 2, 2, 2, -1, 1))
sketch8.addConstraint(Sketcher.Constraint("Equal", 3, 0))
sketch8.addConstraint(Sketcher.Constraint("DistanceX", 1, 1, 1, 2, 7.5))
pocket5 = doc.addObject("PartDesign::Pocket", "Pocket004")
body2.addObject(pocket5)
pocket5.Profile = sketch8
pocket5.Length = 0.1
mirroring.Visibility = False

doc.recompute()
